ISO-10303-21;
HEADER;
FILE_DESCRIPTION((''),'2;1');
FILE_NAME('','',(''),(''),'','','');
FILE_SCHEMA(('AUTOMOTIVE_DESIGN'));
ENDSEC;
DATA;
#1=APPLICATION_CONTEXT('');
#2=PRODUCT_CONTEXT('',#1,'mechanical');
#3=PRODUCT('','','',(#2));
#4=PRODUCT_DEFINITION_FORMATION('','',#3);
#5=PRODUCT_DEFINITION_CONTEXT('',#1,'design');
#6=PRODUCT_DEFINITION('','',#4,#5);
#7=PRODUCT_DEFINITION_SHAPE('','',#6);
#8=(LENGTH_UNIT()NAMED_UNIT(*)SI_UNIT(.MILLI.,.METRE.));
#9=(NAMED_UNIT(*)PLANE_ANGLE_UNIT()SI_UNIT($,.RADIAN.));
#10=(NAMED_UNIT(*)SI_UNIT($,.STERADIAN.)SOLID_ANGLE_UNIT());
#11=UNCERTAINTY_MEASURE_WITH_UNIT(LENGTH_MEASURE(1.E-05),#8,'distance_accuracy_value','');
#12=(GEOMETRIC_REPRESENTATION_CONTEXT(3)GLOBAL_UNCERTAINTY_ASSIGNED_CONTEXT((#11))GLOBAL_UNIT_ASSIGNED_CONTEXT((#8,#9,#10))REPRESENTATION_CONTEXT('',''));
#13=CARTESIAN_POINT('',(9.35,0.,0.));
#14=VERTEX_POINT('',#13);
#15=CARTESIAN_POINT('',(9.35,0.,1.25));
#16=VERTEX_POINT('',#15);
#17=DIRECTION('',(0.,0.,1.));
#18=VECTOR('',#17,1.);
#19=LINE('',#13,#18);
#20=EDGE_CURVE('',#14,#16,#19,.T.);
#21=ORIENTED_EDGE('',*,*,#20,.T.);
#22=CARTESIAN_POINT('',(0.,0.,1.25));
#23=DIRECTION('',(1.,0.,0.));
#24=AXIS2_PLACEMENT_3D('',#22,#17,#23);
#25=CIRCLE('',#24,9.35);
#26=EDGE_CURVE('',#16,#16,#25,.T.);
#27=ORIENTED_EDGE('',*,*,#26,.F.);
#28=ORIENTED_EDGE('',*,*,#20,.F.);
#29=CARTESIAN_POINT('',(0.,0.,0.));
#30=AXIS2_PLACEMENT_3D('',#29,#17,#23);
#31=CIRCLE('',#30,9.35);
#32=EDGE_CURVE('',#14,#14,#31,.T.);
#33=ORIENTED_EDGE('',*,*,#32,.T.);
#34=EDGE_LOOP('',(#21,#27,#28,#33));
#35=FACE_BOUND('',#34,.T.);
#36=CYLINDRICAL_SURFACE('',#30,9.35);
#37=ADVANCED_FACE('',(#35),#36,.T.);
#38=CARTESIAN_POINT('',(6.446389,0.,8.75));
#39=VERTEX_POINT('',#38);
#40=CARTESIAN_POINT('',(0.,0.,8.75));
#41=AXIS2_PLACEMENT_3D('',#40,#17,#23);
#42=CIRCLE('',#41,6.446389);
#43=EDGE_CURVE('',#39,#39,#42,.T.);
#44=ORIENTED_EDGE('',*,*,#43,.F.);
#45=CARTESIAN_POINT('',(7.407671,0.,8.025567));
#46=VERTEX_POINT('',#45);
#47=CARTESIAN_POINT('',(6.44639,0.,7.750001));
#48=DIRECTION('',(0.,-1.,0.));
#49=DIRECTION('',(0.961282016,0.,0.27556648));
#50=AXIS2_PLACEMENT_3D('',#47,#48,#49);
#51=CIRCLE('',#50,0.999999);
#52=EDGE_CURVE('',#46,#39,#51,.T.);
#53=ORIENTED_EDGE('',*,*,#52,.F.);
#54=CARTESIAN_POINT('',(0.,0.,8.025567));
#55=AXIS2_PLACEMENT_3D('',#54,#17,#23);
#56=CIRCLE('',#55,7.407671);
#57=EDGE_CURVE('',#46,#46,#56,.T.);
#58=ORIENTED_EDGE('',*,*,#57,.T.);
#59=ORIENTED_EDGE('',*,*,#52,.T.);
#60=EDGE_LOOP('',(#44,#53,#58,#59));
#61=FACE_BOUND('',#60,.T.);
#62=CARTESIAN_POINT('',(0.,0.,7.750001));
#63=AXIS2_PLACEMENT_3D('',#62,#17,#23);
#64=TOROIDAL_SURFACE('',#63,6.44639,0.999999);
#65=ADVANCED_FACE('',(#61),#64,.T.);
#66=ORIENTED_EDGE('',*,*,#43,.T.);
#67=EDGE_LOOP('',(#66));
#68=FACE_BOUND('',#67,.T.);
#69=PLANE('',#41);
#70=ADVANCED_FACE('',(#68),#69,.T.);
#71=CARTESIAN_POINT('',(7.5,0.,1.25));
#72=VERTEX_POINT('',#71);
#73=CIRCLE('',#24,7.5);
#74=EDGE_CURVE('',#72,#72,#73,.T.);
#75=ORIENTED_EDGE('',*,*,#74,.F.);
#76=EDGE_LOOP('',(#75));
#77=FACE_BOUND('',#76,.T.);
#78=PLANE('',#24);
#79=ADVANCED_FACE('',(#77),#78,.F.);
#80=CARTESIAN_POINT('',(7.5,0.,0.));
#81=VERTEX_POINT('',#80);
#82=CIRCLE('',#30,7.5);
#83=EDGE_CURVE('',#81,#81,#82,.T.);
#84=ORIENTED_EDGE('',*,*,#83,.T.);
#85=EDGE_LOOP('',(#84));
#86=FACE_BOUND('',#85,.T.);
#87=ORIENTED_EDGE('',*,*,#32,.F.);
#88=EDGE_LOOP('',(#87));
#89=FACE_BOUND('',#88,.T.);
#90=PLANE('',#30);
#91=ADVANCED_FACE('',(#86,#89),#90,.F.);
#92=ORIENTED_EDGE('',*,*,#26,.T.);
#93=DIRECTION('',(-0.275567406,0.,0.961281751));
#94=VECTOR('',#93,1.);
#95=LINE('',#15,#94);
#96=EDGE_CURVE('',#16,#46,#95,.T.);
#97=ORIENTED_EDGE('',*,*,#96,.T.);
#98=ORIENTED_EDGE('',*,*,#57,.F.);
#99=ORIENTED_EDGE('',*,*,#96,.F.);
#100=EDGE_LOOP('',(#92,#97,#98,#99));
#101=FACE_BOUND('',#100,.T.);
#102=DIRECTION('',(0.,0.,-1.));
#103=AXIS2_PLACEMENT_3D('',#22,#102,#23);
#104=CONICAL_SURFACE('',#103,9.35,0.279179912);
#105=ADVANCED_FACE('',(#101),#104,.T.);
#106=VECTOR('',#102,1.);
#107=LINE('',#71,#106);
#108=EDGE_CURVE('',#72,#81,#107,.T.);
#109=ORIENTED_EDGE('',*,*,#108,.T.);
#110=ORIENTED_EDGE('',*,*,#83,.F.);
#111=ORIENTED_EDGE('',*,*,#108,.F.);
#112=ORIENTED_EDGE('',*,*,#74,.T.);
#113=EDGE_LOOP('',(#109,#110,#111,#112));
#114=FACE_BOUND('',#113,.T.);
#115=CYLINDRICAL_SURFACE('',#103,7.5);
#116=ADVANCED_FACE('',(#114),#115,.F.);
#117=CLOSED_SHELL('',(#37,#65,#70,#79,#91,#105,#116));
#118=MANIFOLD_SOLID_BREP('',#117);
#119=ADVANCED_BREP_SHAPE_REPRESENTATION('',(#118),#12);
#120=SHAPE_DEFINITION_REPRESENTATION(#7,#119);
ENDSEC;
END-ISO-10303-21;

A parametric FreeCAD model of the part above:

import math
import FreeCAD as App
import Part
import Sketcher

V = App.Vector
Q = App.Units.Quantity

doc = App.newDocument("Part")
params = doc.addObject("Spreadsheet::Sheet", "Params")
for row, (alias, value) in enumerate([
    ("sketch1_radius", "0.999999 mm"),
    ("sketch1_width", "7.5 mm"),
    ("sketch1_width2", "1.85 mm"),
    ("sketch1_height", "1.25 mm"),
    ("revolution_angle", "360 deg"),
], start=1):
    params.set(f"A{row}", alias)
    params.set(f"B{row}", "=" + value)
    params.setAlias(f"B{row}", alias)

body = doc.addObject("PartDesign::Body", "Body")

# Sketch on XZ plane
sketch1 = body.newObject("Sketcher::SketchObject", "Sketch")
sketch1.AttachmentSupport = (doc.getObject("XZ_Plane"), [""])
sketch1.MapMode = "FlatFace"
sketch1.addGeometry(Part.LineSegment(V(6.4, 8.8, 0), V(0, 8.8, 0)), False)
sketch1.addGeometry(Part.LineSegment(V(0, 8.8, 0), V(0, 1.2, 0)), False)
sketch1.addGeometry(Part.LineSegment(V(0, 1.2, 0), V(7.5, 1.2, 0)), False)
sketch1.addGeometry(Part.LineSegment(V(7.5, 1.2, 0), V(7.5, 0, 0)), False)
sketch1.addGeometry(Part.LineSegment(V(7.5, 0, 0), V(9.3, 0, 0)), False)
sketch1.addGeometry(Part.LineSegment(V(9.3, 0, 0), V(9.3, 1.2, 0)), False)
sketch1.addGeometry(Part.LineSegment(V(9.3, 1.2, 0), V(7.4, 8, 0)), False)
sketch1.addGeometry(Part.ArcOfCircle(Part.Circle(V(6.4, 7.8, 0), V(0, 0, 1), 1), math.radians(16), math.radians(90)), False)
sketch1.addConstraint(Sketcher.Constraint("Coincident", 0, 2, 1, 1))
sketch1.addConstraint(Sketcher.Constraint("Coincident", 1, 2, 2, 1))
sketch1.addConstraint(Sketcher.Constraint("Coincident", 2, 2, 3, 1))
sketch1.addConstraint(Sketcher.Constraint("Coincident", 3, 2, 4, 1))
sketch1.addConstraint(Sketcher.Constraint("Coincident", 4, 2, 5, 1))
sketch1.addConstraint(Sketcher.Constraint("Coincident", 5, 2, 6, 1))
sketch1.addConstraint(Sketcher.Constraint("Tangent", 6, 2, 7, 1))
sketch1.addConstraint(Sketcher.Constraint("Tangent", 7, 2, 0, 1))
sketch1.addConstraint(Sketcher.Constraint("Horizontal", 0))
sketch1.addConstraint(Sketcher.Constraint("Vertical", 1))
sketch1.addConstraint(Sketcher.Constraint("Horizontal", 2))
sketch1.addConstraint(Sketcher.Constraint("Vertical", 3))
sketch1.addConstraint(Sketcher.Constraint("Horizontal", 4))
sketch1.addConstraint(Sketcher.Constraint("Vertical", 5))
sketch1.addConstraint(Sketcher.Constraint("PointOnObject", 0, 2, -2))
sketch1.addConstraint(Sketcher.Constraint("PointOnObject", 3, 2, -1))
sketch1.addConstraint(Sketcher.Constraint("Horizontal", 2, 2, 5, 2))
sketch1.addConstraint(Sketcher.Constraint("Equal", 2, 1))
sketch1.addConstraint(Sketcher.Constraint("Radius", 7, Q("0.999999 mm")))
sketch1.addConstraint(Sketcher.Constraint("DistanceX", 2, 1, 2, 2, Q("7.5 mm")))
sketch1.addConstraint(Sketcher.Constraint("DistanceX", 4, 1, 4, 2, Q("1.85 mm")))
sketch1.addConstraint(Sketcher.Constraint("DistanceY", 3, 2, 3, 1, Q("1.25 mm")))
sketch1.addConstraint(Sketcher.Constraint("DistanceX", 0, 2, 0, 1, Q("6.446389 mm")))
sketch1.setExpression("Constraints[18]", "Params.sketch1_radius")
sketch1.setExpression("Constraints[19]", "Params.sketch1_width")
sketch1.setExpression("Constraints[20]", "Params.sketch1_width2")
sketch1.setExpression("Constraints[21]", "Params.sketch1_height")
revolution = body.newObject("PartDesign::Revolution", "Revolution")
revolution.Profile = sketch1
revolution.ReferenceAxis = (sketch1, ["V_Axis"])
revolution.setExpression("Angle", "Params.revolution_angle")

doc.recompute()
